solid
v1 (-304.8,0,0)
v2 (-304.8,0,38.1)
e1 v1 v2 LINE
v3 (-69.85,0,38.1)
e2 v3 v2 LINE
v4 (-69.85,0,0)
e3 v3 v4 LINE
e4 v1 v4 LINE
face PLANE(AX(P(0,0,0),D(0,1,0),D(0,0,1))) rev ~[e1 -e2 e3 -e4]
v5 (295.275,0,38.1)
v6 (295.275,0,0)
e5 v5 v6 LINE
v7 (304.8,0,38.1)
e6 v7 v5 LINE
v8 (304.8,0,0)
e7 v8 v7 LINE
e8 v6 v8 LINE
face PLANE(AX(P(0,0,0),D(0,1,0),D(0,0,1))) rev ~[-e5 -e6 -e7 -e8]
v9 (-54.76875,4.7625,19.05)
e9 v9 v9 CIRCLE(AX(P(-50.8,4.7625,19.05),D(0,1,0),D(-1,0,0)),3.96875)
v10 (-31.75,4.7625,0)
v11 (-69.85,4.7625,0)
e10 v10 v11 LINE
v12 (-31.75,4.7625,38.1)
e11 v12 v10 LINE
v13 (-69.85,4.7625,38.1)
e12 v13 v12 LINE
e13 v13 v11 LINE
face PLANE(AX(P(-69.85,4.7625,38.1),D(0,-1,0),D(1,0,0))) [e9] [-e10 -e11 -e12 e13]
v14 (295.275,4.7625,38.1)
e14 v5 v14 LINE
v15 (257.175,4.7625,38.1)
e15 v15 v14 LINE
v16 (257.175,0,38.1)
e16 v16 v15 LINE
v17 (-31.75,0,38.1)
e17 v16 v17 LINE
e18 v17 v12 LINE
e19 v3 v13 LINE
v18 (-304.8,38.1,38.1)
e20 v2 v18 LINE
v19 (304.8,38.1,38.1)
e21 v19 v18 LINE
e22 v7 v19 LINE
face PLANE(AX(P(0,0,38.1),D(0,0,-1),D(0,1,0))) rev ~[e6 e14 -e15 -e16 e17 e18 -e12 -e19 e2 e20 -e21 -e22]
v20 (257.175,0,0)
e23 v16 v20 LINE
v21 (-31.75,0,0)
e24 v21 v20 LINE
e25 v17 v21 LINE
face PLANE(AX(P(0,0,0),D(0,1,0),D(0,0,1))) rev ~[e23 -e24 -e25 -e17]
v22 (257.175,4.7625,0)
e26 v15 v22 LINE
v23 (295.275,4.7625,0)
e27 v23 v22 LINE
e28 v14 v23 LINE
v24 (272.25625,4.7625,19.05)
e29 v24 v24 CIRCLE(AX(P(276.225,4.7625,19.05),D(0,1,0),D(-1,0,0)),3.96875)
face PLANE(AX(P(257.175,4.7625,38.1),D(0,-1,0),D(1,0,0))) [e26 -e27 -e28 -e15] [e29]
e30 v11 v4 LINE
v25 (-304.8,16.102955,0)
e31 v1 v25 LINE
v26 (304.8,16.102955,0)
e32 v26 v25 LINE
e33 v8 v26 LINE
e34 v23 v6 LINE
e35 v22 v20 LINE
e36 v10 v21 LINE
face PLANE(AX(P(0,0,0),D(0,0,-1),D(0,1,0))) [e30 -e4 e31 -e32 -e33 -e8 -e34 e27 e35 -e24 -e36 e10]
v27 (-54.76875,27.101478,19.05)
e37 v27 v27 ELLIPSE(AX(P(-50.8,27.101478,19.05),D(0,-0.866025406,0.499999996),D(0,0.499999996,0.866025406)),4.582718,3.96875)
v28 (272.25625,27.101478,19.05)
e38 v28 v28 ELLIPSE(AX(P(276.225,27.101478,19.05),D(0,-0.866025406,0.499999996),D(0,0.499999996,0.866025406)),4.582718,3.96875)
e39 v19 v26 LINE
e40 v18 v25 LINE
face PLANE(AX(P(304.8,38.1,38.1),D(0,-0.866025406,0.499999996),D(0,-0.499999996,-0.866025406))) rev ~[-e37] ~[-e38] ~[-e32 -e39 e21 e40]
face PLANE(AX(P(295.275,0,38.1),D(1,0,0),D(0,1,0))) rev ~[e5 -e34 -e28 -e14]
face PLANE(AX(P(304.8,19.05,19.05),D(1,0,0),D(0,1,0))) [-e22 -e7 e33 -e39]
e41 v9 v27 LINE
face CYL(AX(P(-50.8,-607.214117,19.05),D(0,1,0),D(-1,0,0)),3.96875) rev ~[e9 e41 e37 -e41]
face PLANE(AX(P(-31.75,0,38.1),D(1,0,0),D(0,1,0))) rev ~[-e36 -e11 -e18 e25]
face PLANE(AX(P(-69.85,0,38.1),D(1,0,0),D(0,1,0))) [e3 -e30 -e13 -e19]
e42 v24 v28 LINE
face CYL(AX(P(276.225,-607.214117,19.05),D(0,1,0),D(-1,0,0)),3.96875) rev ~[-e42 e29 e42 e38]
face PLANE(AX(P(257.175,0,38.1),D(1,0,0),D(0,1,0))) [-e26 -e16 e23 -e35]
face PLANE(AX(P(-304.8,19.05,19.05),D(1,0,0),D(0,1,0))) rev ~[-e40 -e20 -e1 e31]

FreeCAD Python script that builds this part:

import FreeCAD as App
import Part
import Sketcher
Q = App.Units.Quantity

doc = App.newDocument("Part")
body = doc.addObject("PartDesign::Body", "Body")

# Sketch on YZ plane
sketch1 = doc.addObject("Sketcher::SketchObject", "Sketch")
body.addObject(sketch1)
sketch1.AttachmentSupport = (doc.YZ_Plane, [""])
sketch1.MapMode = "FlatFace"
sketch1.addGeometry(Part.LineSegment(App.Vector(0, 38, 0), App.Vector(0, 0, 0)), False)
sketch1.addGeometry(Part.LineSegment(App.Vector(0, 0, 0), App.Vector(38, 0, 0)), False)
sketch1.addGeometry(Part.LineSegment(App.Vector(38, 0, 0), App.Vector(38, 38, 0)), False)
sketch1.addGeometry(Part.LineSegment(App.Vector(38, 38, 0), App.Vector(0, 38, 0)), False)
sketch1.addConstraint(Sketcher.Constraint("Coincident", 0, 2, 1, 1))
sketch1.addConstraint(Sketcher.Constraint("Coincident", 1, 2, 2, 1))
sketch1.addConstraint(Sketcher.Constraint("Coincident", 2, 2, 3, 1))
sketch1.addConstraint(Sketcher.Constraint("Coincident", 3, 2, 0, 1))
sketch1.addConstraint(Sketcher.Constraint("Vertical", 0))
sketch1.addConstraint(Sketcher.Constraint("Horizontal", 1))
sketch1.addConstraint(Sketcher.Constraint("Vertical", 2))
sketch1.addConstraint(Sketcher.Constraint("Horizontal", 3))
sketch1.addConstraint(Sketcher.Constraint("Coincident", 0, 2, -1, 1))
sketch1.addConstraint(Sketcher.Constraint("Equal", 3, 0))
sketch1.addConstraint(Sketcher.Constraint("DistanceX", 1, 1, 1, 2, Q("1.5 in")))
pad1 = doc.addObject("PartDesign::Pad", "Pad")
body.addObject(pad1)
pad1.Profile = sketch1
pad1.Type = "TwoLengths"
pad1.Length = Q("12 in")
pad1.Length2 = Q("12 in")

# Sketch on XY plane
sketch2 = doc.addObject("Sketcher::SketchObject", "Sketch001")
body.addObject(sketch2)
sketch2.AttachmentSupport = (doc.XY_Plane, [""])
sketch2.MapMode = "FlatFace"
sketch2.AttachmentOffset = App.Placement(App.Vector(0, 0, 1.5 * 25.4), App.Rotation())
sketch2.addGeometry(Part.LineSegment(App.Vector(-69.8, 4.8, 0), App.Vector(-69.8, 0, 0)), False)
sketch2.addGeometry(Part.LineSegment(App.Vector(-69.8, 0, 0), App.Vector(-31.8, 0, 0)), False)
sketch2.addGeometry(Part.LineSegment(App.Vector(-31.8, 0, 0), App.Vector(-31.8, 4.8, 0)), False)
sketch2.addGeometry(Part.LineSegment(App.Vector(-31.8, 4.8, 0), App.Vector(-69.8, 4.8, 0)), False)
sketch2.addGeometry(Part.LineSegment(App.Vector(257.2, 4.8, 0), App.Vector(257.2, 0, 0)), False)
sketch2.addGeometry(Part.LineSegment(App.Vector(257.2, 0, 0), App.Vector(295.3, 0, 0)), False)
sketch2.addGeometry(Part.LineSegment(App.Vector(295.3, 0, 0), App.Vector(295.3, 4.8, 0)), False)
sketch2.addGeometry(Part.LineSegment(App.Vector(295.3, 4.8, 0), App.Vector(257.2, 4.8, 0)), False)
sketch2.addConstraint(Sketcher.Constraint("Coincident", 0, 2, 1, 1))
sketch2.addConstraint(Sketcher.Constraint("Coincident", 1, 2, 2, 1))
sketch2.addConstraint(Sketcher.Constraint("Coincident", 2, 2, 3, 1))
sketch2.addConstraint(Sketcher.Constraint("Coincident", 3, 2, 0, 1))
sketch2.addConstraint(Sketcher.Constraint("Coincident", 4, 2, 5, 1))
sketch2.addConstraint(Sketcher.Constraint("Coincident", 5, 2, 6, 1))
sketch2.addConstraint(Sketcher.Constraint("Coincident", 6, 2, 7, 1))
sketch2.addConstraint(Sketcher.Constraint("Coincident", 7, 2, 4, 1))
sketch2.addConstraint(Sketcher.Constraint("Vertical", 0))
sketch2.addConstraint(Sketcher.Constraint("Horizontal", 1))
sketch2.addConstraint(Sketcher.Constraint("Vertical", 2))
sketch2.addConstraint(Sketcher.Constraint("Horizontal", 3))
sketch2.addConstraint(Sketcher.Constraint("Vertical", 4))
sketch2.addConstraint(Sketcher.Constraint("Horizontal", 5))
sketch2.addConstraint(Sketcher.Constraint("Vertical", 6))
sketch2.addConstraint(Sketcher.Constraint("Horizontal", 7))
sketch2.addConstraint(Sketcher.Constraint("PointOnObject", 0, 2, -1))
sketch2.addConstraint(Sketcher.Constraint("PointOnObject", 4, 2, -1))
sketch2.addConstraint(Sketcher.Constraint("Horizontal", 3, 2, 6, 2))
sketch2.addConstraint(Sketcher.Constraint("Equal", 3, 5))
sketch2.addConstraint(Sketcher.Constraint("DistanceX", 1, 1, 1, 2, Q("1.5 in")))
sketch2.addConstraint(Sketcher.Constraint("DistanceY", 0, 2, 0, 1, Q("0.1875 in")))
sketch2.addConstraint(Sketcher.Constraint("DistanceX", 0, 2, -1, 1, Q("2.75 in")))
sketch2.addConstraint(Sketcher.Constraint("DistanceX", -1, 1, 4, 2, Q("10.125 in")))
pocket1 = doc.addObject("PartDesign::Pocket", "Pocket")
body.addObject(pocket1)
pocket1.Profile = sketch2
pocket1.Type = "ThroughAll"

# Sketch on XZ plane
sketch3 = doc.addObject("Sketcher::SketchObject", "Sketch002")
body.addObject(sketch3)
sketch3.AttachmentSupport = (doc.XZ_Plane, [""])
sketch3.MapMode = "FlatFace"
sketch3.AttachmentOffset = App.Placement(App.Vector(0, 0, -0.1875 * 25.4), App.Rotation())
sketch3.addGeometry(Part.Circle(App.Vector(-50.8, 19.1, 0), App.Vector(0, 0, 1), 4), False)
sketch3.addGeometry(Part.Circle(App.Vector(276.2, 19.1, 0), App.Vector(0, 0, 1), 4), False)
sketch3.addConstraint(Sketcher.Constraint("Equal", 0, 1))
sketch3.addConstraint(Sketcher.Constraint("Horizontal", 0, 3, 1, 3))
sketch3.addConstraint(Sketcher.Constraint("Diameter", 0, Q("0.3125 in")))
sketch3.addConstraint(Sketcher.Constraint("DistanceX", 0, 3, -1, 1, Q("2 in")))
sketch3.addConstraint(Sketcher.Constraint("DistanceY", -1, 1, 0, 3, Q("0.75 in")))
sketch3.addConstraint(Sketcher.Constraint("DistanceX", -1, 1, 1, 3, Q("10.875 in")))
doc.recompute()
hole = doc.addObject("PartDesign::Hole", "Hole")
body.addObject(hole)
hole.Profile = sketch3
hole.ThreadType = "None"
hole.Diameter = Q("0.3125 in")
hole.DepthType = "ThroughAll"

# Sketch on YZ plane
sketch4 = doc.addObject("Sketcher::SketchObject", "Sketch003")
body.addObject(sketch4)
sketch4.AttachmentSupport = (doc.YZ_Plane, [""])
sketch4.MapMode = "FlatFace"
sketch4.AttachmentOffset = App.Placement(App.Vector(0, 0, 12 * 25.4), App.Rotation())
sketch4.addGeometry(Part.LineSegment(App.Vector(38, 0, 0), App.Vector(38, 38, 0)), False)
sketch4.addGeometry(Part.LineSegment(App.Vector(38, 38, 0), App.Vector(16, 0, 0)), False)
sketch4.addGeometry(Part.LineSegment(App.Vector(16, 0, 0), App.Vector(38, 0, 0)), False)
sketch4.addConstraint(Sketcher.Constraint("Coincident", 0, 2, 1, 1))
sketch4.addConstraint(Sketcher.Constraint("Coincident", 1, 2, 2, 1))
sketch4.addConstraint(Sketcher.Constraint("Coincident", 2, 2, 0, 1))
sketch4.addConstraint(Sketcher.Constraint("Vertical", 0))
sketch4.addConstraint(Sketcher.Constraint("Horizontal", 2))
sketch4.addConstraint(Sketcher.Constraint("PointOnObject", 1, 2, -1))
sketch4.addConstraint(Sketcher.Constraint("DistanceY", 0, 1, 0, 2, Q("1.5 in")))
sketch4.addConstraint(Sketcher.Constraint("Angle", 1, Q("-120 deg")))
sketch4.addConstraint(Sketcher.Constraint("DistanceX", -1, 1, 0, 2, Q("1.5 in")))
pocket2 = doc.addObject("PartDesign::Pocket", "Pocket001")
body.addObject(pocket2)
pocket2.Profile = sketch4
pocket2.Type = "ThroughAll"

doc.recompute()
